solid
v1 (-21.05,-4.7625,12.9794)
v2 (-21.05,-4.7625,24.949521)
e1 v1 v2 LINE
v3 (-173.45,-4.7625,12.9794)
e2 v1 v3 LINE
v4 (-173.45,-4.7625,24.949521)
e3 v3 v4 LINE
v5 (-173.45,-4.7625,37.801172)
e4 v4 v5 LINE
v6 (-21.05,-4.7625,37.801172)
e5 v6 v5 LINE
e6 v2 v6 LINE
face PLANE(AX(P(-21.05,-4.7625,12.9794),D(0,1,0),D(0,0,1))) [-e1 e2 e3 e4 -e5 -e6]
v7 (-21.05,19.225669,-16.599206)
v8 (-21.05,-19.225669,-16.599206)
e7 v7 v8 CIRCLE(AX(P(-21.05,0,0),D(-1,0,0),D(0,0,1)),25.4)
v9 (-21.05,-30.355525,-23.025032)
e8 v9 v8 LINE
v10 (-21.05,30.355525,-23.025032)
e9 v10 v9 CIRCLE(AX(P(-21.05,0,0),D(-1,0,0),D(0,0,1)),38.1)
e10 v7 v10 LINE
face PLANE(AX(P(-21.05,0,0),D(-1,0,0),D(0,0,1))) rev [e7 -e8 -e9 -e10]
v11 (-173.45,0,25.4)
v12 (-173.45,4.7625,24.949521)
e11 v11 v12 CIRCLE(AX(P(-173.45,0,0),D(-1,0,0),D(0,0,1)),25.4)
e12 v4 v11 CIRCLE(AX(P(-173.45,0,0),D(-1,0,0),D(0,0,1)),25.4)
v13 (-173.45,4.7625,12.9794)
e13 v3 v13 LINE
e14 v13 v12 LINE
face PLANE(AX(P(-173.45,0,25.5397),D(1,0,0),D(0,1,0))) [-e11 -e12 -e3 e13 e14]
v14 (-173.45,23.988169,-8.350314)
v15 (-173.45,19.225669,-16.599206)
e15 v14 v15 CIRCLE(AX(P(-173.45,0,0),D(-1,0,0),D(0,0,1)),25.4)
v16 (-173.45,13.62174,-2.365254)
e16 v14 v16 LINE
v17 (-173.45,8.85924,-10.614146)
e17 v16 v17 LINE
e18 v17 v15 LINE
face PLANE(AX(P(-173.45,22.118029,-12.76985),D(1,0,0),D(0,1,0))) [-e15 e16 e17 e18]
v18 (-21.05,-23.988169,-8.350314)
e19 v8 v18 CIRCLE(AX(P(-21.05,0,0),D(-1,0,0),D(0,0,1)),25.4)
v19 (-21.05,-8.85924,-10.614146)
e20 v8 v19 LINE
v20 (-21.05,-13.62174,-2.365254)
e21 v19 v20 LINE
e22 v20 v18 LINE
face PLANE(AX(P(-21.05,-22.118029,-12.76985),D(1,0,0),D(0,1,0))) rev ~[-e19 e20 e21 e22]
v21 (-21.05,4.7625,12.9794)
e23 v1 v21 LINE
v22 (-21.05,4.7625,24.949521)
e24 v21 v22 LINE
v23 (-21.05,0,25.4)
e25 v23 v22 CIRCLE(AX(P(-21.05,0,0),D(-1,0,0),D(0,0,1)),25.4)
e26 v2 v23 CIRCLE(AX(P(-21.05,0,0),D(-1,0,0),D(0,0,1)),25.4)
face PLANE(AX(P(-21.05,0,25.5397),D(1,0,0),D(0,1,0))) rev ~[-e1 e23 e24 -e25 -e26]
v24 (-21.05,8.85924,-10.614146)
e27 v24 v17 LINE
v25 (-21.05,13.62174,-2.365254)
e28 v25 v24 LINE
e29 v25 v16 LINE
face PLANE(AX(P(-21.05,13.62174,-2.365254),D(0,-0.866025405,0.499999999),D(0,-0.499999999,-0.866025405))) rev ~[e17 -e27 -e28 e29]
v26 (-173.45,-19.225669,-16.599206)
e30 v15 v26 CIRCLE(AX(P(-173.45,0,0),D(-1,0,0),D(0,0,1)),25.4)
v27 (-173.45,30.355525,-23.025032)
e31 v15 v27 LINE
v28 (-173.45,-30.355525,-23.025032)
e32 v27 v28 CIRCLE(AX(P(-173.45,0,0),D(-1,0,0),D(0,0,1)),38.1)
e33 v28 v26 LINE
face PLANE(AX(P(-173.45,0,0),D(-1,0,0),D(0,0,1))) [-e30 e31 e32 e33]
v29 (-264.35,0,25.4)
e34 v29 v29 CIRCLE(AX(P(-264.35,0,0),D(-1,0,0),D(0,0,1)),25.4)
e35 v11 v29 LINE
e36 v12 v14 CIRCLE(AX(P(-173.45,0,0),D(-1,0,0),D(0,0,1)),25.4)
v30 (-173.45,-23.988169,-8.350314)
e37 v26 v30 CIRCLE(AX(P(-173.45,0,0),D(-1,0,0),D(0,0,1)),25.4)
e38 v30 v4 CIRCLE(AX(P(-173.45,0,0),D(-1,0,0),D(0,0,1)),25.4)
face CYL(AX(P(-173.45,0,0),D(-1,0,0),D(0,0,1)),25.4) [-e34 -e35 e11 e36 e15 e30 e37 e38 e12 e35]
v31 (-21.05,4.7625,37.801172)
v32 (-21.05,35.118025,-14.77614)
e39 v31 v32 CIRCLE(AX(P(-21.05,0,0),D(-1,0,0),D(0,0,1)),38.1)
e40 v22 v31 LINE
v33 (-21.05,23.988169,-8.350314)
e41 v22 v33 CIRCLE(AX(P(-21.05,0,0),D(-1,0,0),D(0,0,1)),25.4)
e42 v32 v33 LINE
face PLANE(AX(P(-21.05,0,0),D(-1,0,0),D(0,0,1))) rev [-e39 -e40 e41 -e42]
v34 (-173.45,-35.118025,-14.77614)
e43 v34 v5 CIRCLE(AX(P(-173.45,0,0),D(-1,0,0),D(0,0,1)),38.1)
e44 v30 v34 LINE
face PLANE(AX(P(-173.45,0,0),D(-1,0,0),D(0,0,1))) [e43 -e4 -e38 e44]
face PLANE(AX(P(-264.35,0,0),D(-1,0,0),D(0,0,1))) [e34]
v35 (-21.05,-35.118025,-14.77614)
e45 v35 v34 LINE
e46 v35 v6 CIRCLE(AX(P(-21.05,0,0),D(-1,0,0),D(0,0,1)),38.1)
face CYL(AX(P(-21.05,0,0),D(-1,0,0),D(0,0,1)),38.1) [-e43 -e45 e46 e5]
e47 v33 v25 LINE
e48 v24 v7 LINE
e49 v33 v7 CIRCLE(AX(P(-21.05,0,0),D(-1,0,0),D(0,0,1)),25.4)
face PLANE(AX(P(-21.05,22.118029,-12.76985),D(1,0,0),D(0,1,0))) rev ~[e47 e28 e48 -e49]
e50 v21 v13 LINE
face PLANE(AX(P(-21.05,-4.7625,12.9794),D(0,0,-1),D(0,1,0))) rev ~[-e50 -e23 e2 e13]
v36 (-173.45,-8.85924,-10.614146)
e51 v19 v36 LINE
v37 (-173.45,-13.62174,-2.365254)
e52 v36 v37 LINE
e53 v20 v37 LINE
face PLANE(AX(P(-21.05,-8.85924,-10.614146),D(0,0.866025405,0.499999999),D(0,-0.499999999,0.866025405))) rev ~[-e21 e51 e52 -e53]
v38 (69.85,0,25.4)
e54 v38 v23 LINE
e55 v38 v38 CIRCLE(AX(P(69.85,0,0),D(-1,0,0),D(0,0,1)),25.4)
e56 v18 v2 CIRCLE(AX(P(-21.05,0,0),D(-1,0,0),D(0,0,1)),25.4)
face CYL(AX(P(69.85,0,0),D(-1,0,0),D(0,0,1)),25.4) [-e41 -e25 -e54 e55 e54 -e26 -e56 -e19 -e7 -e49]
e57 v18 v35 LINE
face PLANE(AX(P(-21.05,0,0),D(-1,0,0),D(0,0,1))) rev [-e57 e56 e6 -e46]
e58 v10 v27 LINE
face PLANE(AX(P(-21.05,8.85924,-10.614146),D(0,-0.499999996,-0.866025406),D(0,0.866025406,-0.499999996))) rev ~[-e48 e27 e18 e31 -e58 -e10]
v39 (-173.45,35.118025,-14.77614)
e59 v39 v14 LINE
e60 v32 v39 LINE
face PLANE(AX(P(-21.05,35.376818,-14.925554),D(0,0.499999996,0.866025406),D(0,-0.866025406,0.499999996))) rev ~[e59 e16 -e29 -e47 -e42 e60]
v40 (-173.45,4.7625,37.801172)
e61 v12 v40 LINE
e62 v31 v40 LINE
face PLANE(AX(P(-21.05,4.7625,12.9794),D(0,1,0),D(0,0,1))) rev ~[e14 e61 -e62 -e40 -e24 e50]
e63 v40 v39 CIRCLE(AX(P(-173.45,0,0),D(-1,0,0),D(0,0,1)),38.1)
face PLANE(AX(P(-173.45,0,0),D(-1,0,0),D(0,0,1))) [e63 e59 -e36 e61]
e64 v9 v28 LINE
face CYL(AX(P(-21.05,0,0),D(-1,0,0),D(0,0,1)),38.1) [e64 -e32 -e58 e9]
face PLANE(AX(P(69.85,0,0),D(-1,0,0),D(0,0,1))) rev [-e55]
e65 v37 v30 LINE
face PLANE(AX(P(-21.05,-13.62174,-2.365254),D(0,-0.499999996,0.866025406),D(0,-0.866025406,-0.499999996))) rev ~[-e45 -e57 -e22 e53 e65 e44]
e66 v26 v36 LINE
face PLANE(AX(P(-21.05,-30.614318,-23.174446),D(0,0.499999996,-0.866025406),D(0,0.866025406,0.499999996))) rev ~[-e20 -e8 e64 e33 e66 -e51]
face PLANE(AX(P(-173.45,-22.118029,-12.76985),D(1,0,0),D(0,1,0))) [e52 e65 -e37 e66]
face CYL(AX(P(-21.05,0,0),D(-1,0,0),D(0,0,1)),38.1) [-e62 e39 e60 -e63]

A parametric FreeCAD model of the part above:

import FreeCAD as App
import Part
import Sketcher
Q = App.Units.Quantity


def add_polygon(sketch, points):
    """Adds a closed chain of lines whose ends are joined by coincident constraints."""
    first, n = sketch.GeometryCount, len(points)
    for a, b in zip(points, points[1:] + points[:1]):
        sketch.addGeometry(Part.LineSegment(App.Vector(*a, 0), App.Vector(*b, 0)), False)
    for i in range(n):
        sketch.addConstraint(Sketcher.Constraint("Coincident", first + i, 2, first + (i + 1) % n, 1))

doc = App.newDocument("Part")
body = doc.addObject("PartDesign::Body", "Body")

sketch1 = body.newObject("Sketcher::SketchObject", "Sketch")
sketch1.AttachmentSupport = (doc.getObject("XZ_Plane"), [""])
sketch1.MapMode = "FlatFace"
add_polygon(sketch1, [(70, 0), (70, 25), (-21, 25), (-21, 38), (-173, 38), (-173, 25), (-264, 25), (-264, 0)])
sketch1.addConstraint([
    Sketcher.Constraint("Vertical", 0),
    Sketcher.Constraint("Horizontal", 1),
    Sketcher.Constraint("Vertical", 2),
    Sketcher.Constraint("Horizontal", 3),
    Sketcher.Constraint("Vertical", 4),
    Sketcher.Constraint("Horizontal", 5),
    Sketcher.Constraint("Vertical", 6),
    Sketcher.Constraint("Horizontal", 7),
    Sketcher.Constraint("PointOnObject", 6, 2, -1),
    Sketcher.Constraint("Horizontal", 1, 2, 4, 2),
    Sketcher.Constraint("Equal", 1, 5),
    Sketcher.Constraint("DistanceX", 3, 2, 3, 1, Q("6 in")),
    Sketcher.Constraint("DistanceY", 0, 1, 0, 2, Q("1 in")),
    Sketcher.Constraint("DistanceY", 2, 1, 2, 2, Q("0.5 in")),
    Sketcher.Constraint("DistanceX", -1, 1, 0, 2, Q("2.75 in")),
    Sketcher.Constraint("DistanceX", 1, 2, 1, 1, 90.9),
])
revolution = body.newObject("PartDesign::Revolution", "Revolution")
revolution.Profile = sketch1
revolution.ReferenceAxis = (sketch1, ["H_Axis"])
revolution.Angle = 360

sketch2 = body.newObject("Sketcher::SketchObject", "Sketch001")
sketch2.AttachmentSupport = (doc.getObject("YZ_Plane"), [""])
sketch2.MapMode = "FlatFace"
sketch2.AttachmentOffset = App.Placement(App.Vector(0, 0, -21.05), App.Rotation())
add_polygon(sketch2, [(-5, 38), (-5, 13), (5, 13), (5, 38)])
add_polygon(sketch2, [(-31, -23), (-9, -11), (-14, -2), (-35, -15)])
add_polygon(sketch2, [(35, -15), (14, -2), (9, -11), (31, -23)])
sketch2.addConstraint([
    Sketcher.Constraint("Vertical", 0),
    Sketcher.Constraint("Horizontal", 1),
    Sketcher.Constraint("Vertical", 2),
    Sketcher.Constraint("Horizontal", 3),
    Sketcher.Constraint("Symmetric", 5, 2, 8, 2, -2),
    Sketcher.Constraint("Symmetric", 4, 2, 9, 2, -2),
    Sketcher.Constraint("Symmetric", 7, 2, 10, 2, -2),
    Sketcher.Constraint("Symmetric", 6, 2, 11, 2, -2),
    Sketcher.Constraint("Perpendicular", 4, 5),
    Sketcher.Constraint("Perpendicular", 5, 6),
    Sketcher.Constraint("Perpendicular", 6, 7),
    Sketcher.Constraint("Angle", 4, Q("30 deg")),
    Sketcher.Constraint("DistanceY", -1, 1, 2, 2, Q("1.5 in")),
    Sketcher.Constraint("DistanceX", 1, 1, 1, 2, Q("0.375 in")),
    Sketcher.Constraint("DistanceY", 0, 2, 0, 1, Q("0.989 in")),
    Sketcher.Constraint("Distance", 4, Q("0.989 in")),
    Sketcher.Constraint("Distance", 5, Q("0.375 in")),
    Sketcher.Constraint("DistanceX", 0, 2, -1, 1, Q("0.1875 in")),
    Sketcher.Constraint("DistanceX", 4, 2, -1, 1, 8.85924),
    Sketcher.Constraint("DistanceY", 4, 2, -1, 1, 10.614146),
])
pocket1 = body.newObject("PartDesign::Pocket", "Pocket")
pocket1.Profile = sketch2
pocket1.Length = Q("6 in")

doc.recompute()
